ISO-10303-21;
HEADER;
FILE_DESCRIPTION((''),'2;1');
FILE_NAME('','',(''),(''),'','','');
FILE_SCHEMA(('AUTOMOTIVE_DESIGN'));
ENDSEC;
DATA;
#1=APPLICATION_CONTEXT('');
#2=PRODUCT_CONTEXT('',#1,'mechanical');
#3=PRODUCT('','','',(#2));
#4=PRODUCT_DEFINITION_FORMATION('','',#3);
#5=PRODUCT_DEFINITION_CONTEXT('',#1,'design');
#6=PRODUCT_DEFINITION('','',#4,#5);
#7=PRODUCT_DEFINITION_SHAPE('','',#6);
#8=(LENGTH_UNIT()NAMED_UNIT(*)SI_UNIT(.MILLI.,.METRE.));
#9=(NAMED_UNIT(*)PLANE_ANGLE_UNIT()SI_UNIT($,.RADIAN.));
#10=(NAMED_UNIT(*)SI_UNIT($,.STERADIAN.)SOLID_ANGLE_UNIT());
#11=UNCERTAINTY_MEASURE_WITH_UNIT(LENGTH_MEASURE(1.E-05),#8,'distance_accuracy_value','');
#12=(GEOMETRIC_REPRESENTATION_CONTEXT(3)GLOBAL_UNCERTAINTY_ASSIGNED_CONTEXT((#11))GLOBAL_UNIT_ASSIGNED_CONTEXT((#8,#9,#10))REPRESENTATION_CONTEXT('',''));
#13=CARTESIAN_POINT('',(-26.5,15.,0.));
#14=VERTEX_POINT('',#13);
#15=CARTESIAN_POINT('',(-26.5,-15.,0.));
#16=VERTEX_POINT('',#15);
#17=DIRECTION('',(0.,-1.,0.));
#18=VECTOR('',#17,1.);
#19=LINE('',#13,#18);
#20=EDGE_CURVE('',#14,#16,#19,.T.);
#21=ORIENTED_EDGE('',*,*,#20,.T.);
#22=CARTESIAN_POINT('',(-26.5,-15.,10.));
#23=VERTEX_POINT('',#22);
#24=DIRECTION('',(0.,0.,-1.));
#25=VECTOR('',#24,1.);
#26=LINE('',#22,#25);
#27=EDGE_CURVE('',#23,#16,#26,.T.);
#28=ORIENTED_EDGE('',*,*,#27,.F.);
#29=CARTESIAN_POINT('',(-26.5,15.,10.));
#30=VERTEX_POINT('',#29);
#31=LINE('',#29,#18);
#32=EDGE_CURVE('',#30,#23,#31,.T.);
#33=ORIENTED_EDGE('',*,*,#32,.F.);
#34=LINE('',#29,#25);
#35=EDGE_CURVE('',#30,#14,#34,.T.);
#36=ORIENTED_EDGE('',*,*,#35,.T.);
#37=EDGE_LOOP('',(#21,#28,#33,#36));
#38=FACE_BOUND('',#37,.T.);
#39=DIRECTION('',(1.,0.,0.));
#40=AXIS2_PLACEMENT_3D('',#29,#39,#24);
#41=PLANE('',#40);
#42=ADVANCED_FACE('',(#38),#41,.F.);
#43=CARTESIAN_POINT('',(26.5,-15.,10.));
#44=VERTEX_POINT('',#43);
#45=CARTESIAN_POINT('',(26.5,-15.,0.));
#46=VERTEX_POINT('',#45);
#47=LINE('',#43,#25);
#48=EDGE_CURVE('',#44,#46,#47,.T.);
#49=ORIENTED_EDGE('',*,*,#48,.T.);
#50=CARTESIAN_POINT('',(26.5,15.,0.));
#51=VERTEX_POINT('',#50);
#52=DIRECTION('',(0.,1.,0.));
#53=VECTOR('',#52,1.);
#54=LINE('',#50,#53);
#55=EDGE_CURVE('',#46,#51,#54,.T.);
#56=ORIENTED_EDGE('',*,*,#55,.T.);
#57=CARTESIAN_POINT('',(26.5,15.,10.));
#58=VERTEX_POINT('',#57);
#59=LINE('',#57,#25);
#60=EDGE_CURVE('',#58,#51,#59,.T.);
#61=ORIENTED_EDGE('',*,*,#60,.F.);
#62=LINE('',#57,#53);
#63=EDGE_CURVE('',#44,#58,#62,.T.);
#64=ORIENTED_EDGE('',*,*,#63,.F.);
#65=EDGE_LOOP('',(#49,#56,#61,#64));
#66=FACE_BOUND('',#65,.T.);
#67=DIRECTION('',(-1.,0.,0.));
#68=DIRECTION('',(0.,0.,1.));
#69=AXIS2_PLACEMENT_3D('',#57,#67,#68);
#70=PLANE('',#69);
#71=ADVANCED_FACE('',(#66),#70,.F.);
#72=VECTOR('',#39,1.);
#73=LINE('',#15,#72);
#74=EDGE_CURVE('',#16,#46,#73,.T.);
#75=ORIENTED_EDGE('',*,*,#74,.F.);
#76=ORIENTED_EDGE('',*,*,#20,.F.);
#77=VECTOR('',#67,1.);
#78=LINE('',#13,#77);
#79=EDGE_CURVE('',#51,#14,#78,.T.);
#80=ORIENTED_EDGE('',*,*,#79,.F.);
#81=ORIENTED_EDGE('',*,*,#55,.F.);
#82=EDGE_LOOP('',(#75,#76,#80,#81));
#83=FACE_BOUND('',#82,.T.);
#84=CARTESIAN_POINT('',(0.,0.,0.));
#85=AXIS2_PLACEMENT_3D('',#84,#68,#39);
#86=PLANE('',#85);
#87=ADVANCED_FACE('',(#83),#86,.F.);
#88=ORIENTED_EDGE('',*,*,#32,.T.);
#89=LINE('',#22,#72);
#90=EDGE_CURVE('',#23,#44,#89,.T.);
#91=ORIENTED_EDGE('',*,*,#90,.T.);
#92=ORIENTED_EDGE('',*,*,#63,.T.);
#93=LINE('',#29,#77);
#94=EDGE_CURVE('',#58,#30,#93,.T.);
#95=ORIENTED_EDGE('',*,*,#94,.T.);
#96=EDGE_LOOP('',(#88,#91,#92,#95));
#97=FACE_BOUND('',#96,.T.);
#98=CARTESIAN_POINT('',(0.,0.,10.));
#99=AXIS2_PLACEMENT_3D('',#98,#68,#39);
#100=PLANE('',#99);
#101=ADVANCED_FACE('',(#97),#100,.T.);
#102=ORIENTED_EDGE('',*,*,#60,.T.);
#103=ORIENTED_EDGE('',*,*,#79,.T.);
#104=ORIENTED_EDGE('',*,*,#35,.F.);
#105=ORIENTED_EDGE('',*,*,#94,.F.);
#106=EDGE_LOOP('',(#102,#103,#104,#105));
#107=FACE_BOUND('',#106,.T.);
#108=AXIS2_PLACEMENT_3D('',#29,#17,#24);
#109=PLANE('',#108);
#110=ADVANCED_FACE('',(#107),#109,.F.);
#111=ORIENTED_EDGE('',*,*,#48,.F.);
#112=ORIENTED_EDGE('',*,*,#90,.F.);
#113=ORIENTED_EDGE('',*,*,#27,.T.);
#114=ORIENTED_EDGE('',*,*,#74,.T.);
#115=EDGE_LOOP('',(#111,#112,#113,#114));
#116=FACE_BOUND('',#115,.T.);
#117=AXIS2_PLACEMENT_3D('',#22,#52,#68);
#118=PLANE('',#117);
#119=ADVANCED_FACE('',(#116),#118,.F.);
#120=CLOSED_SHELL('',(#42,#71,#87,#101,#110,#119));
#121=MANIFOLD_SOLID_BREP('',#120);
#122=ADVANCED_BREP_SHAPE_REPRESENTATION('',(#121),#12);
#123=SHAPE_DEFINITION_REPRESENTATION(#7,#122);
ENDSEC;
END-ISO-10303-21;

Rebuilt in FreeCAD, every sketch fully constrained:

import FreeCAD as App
import Part
import Sketcher

V = App.Vector


def add_polygon(sketch, points):
    """Adds a closed chain of lines whose ends are joined by coincident constraints."""
    first, n = sketch.GeometryCount, len(points)
    for a, b in zip(points, points[1:] + points[:1]):
        sketch.addGeometry(Part.LineSegment(App.Vector(*a, 0), App.Vector(*b, 0)), False)
    for i in range(n):
        sketch.addConstraint(Sketcher.Constraint("Coincident", first + i, 2, first + (i + 1) % n, 1))

doc = App.newDocument("Part")
body = doc.addObject("PartDesign::Body", "Body")

sketch1 = body.newObject("Sketcher::SketchObject", "Sketch")
sketch1.AttachmentSupport = (doc.getObject("XY_Plane"), [""])
sketch1.MapMode = "FlatFace"
add_polygon(sketch1, [(-26, 15), (-26, -15), (26, -15), (26, 15)])
sketch1.addConstraint(Sketcher.Constraint("Vertical", 0))
sketch1.addConstraint(Sketcher.Constraint("Horizontal", 1))
sketch1.addConstraint(Sketcher.Constraint("Vertical", 2))
sketch1.addConstraint(Sketcher.Constraint("Horizontal", 3))
sketch1.addConstraint(Sketcher.Constraint("Symmetric", 0, 2, 2, 2, -1, 1))
sketch1.addConstraint(Sketcher.Constraint("DistanceX", 1, 1, 1, 2, 53.0))
sketch1.addConstraint(Sketcher.Constraint("DistanceY", 0, 2, 0, 1, 30.0))
pad1 = body.newObject("PartDesign::Pad", "Pad")
pad1.Profile = sketch1
pad1.Length = 10

doc.recompute()
